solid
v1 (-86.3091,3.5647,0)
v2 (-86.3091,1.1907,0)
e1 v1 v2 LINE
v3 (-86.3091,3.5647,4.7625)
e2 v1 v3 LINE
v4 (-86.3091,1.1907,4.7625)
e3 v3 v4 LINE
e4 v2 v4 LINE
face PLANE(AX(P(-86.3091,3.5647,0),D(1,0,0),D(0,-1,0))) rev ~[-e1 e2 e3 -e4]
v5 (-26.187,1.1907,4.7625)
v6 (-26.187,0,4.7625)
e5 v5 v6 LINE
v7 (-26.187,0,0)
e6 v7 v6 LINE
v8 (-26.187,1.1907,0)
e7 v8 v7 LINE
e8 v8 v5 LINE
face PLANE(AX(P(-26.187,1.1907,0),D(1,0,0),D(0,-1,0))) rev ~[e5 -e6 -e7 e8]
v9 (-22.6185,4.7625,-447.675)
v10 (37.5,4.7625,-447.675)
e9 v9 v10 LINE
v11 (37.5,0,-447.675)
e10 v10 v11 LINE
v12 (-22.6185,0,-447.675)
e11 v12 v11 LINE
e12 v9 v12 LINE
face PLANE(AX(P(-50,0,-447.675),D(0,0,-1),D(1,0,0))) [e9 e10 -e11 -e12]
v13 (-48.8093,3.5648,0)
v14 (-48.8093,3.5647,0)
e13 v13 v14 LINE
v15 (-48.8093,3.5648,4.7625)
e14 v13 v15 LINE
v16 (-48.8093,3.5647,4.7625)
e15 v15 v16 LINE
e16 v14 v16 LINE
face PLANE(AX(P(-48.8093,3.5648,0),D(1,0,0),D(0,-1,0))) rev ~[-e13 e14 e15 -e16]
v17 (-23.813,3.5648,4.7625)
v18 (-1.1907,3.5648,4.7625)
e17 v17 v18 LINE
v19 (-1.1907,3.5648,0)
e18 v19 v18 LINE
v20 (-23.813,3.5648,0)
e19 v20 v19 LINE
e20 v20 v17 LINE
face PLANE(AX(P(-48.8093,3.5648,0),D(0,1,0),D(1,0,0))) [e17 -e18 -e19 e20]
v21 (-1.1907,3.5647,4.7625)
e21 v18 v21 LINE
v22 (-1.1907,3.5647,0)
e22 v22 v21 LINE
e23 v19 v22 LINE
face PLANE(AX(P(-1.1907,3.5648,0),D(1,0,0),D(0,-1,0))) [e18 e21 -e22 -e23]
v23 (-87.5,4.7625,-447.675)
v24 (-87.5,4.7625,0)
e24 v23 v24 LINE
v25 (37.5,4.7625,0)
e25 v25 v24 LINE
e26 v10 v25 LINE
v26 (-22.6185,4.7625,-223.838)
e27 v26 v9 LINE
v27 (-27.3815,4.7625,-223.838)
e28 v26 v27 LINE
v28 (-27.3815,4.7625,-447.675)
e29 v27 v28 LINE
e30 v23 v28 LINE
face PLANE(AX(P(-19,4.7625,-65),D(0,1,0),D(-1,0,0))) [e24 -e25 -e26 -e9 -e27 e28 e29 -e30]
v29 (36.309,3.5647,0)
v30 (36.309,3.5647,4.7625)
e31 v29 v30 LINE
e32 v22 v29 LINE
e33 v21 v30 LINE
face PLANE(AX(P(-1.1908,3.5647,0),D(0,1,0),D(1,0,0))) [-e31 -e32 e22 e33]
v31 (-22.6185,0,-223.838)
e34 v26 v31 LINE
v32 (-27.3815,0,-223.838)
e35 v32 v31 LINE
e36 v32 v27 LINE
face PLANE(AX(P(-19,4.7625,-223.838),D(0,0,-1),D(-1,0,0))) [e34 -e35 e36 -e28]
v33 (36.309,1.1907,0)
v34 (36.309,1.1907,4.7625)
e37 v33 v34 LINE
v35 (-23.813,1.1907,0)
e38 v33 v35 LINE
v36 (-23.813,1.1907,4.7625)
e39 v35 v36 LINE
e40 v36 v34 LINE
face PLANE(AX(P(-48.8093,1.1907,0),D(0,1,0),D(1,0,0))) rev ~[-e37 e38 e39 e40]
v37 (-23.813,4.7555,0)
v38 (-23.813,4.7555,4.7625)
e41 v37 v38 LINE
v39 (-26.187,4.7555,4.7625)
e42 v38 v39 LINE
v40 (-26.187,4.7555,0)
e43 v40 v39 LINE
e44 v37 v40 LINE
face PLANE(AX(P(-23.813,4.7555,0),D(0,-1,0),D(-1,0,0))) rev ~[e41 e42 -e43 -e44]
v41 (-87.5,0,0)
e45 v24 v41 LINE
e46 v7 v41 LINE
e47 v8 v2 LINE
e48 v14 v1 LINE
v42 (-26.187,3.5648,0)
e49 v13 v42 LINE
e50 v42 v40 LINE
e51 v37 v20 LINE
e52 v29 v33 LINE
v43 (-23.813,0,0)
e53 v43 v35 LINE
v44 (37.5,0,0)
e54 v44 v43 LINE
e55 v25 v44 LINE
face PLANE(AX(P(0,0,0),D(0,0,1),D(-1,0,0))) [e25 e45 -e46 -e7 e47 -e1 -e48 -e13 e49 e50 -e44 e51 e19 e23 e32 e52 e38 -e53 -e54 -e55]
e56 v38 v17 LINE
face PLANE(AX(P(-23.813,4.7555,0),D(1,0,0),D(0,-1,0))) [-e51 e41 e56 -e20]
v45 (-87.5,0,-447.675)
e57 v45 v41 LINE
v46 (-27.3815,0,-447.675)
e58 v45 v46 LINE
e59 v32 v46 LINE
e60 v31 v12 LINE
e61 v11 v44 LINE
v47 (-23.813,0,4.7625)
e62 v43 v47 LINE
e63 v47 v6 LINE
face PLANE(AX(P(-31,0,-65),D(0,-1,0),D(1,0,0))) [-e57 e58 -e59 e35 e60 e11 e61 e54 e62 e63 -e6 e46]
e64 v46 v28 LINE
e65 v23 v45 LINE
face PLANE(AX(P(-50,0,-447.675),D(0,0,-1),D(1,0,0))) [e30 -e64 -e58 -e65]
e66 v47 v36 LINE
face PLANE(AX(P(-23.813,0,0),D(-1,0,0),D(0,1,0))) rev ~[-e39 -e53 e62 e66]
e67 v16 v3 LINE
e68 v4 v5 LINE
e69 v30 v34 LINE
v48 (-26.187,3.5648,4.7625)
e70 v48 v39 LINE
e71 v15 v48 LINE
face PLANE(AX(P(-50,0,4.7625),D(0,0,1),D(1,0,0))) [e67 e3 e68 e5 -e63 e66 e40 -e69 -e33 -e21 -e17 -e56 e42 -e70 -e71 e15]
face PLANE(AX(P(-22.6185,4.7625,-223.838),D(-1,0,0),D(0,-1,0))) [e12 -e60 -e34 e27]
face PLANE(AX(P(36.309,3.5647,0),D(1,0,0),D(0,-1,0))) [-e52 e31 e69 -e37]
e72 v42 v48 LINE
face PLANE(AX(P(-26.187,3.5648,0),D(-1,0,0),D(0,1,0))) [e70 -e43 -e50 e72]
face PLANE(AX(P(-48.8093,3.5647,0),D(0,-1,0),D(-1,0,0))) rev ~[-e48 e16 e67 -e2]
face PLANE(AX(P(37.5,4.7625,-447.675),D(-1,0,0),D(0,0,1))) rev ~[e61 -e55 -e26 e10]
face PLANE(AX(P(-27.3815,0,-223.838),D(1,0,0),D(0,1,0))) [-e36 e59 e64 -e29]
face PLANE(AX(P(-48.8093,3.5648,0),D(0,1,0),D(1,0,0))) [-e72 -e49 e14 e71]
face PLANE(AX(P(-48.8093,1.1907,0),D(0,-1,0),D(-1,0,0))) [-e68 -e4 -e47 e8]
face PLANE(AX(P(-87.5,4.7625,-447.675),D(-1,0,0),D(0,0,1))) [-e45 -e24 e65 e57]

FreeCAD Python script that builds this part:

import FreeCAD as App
import Part
import Sketcher
Q = App.Units.Quantity

doc = App.newDocument("Part")
body = doc.addObject("PartDesign::Body", "Body")

sketch1 = body.newObject("Sketcher::SketchObject", "Sketch")
sketch1.AttachmentSupport = (doc.getObject("XZ_Plane"), [""])
sketch1.MapMode = "FlatFace"
sketch1.addGeometry(Part.LineSegment(App.Vector(-50, 0, 0), App.Vector(0, 0, 0)), False)
sketch1.addGeometry(Part.LineSegment(App.Vector(0, 0, 0), App.Vector(0, -448, 0)), False)
sketch1.addGeometry(Part.LineSegment(App.Vector(0, -448, 0), App.Vector(-50, -448, 0)), False)
sketch1.addGeometry(Part.LineSegment(App.Vector(-50, -448, 0), App.Vector(-50, 0, 0)), False)
sketch1.addConstraint(Sketcher.Constraint("Coincident", 0, 2, 1, 1))
sketch1.addConstraint(Sketcher.Constraint("Coincident", 1, 2, 2, 1))
sketch1.addConstraint(Sketcher.Constraint("Coincident", 2, 2, 3, 1))
sketch1.addConstraint(Sketcher.Constraint("Coincident", 3, 2, 0, 1))
sketch1.addConstraint(Sketcher.Constraint("Horizontal", 0))
sketch1.addConstraint(Sketcher.Constraint("Vertical", 1))
sketch1.addConstraint(Sketcher.Constraint("Horizontal", 2))
sketch1.addConstraint(Sketcher.Constraint("Vertical", 3))
sketch1.addConstraint(Sketcher.Constraint("Coincident", 0, 2, -1, 1))
sketch1.addConstraint(Sketcher.Constraint("DistanceX", 0, 1, 0, 2, Q("50 mm")))
sketch1.addConstraint(Sketcher.Constraint("DistanceY", 1, 2, 1, 1, Q("447.675 mm")))
pad1 = body.newObject("PartDesign::Pad", "Pad")
pad1.Profile = sketch1
pad1.Length = 4.7625
pad1.Reversed = True

sketch2 = body.newObject("Sketcher::SketchObject", "Sketch001")
sketch2.AttachmentSupport = (doc.getObject("XY_Plane"), [""])
sketch2.MapMode = "FlatFace"
sketch2.addGeometry(Part.LineSegment(App.Vector(-1.2, 3.6, 0), App.Vector(-48.8, 3.6, 0)), False)
sketch2.addGeometry(Part.LineSegment(App.Vector(-48.8, 3.6, 0), App.Vector(-48.8, 1.2, 0)), False)
sketch2.addGeometry(Part.LineSegment(App.Vector(-48.8, 1.2, 0), App.Vector(-1.2, 1.2, 0)), False)
sketch2.addGeometry(Part.LineSegment(App.Vector(-1.2, 1.2, 0), App.Vector(-1.2, 3.6, 0)), False)
sketch2.addConstraint(Sketcher.Constraint("Coincident", 0, 2, 1, 1))
sketch2.addConstraint(Sketcher.Constraint("Coincident", 1, 2, 2, 1))
sketch2.addConstraint(Sketcher.Constraint("Coincident", 2, 2, 3, 1))
sketch2.addConstraint(Sketcher.Constraint("Coincident", 3, 2, 0, 1))
sketch2.addConstraint(Sketcher.Constraint("Horizontal", 0))
sketch2.addConstraint(Sketcher.Constraint("Vertical", 1))
sketch2.addConstraint(Sketcher.Constraint("Horizontal", 2))
sketch2.addConstraint(Sketcher.Constraint("Vertical", 3))
sketch2.addConstraint(Sketcher.Constraint("DistanceY", 1, 2, 1, 1, Q("2.374 mm")))
sketch2.addConstraint(Sketcher.Constraint("DistanceX", 0, 2, 0, 1, Q("47.6186 mm")))
sketch2.addConstraint(Sketcher.Constraint("DistanceX", 0, 2, -1, 1, Q("48.8093 mm")))
sketch2.addConstraint(Sketcher.Constraint("DistanceY", -1, 1, 0, 2, Q("3.5648 mm")))
pad2 = body.newObject("PartDesign::Pad", "Pad001")
pad2.Profile = sketch2
pad2.Length = 4.7625

sketch3 = body.newObject("Sketcher::SketchObject", "Sketch002")
sketch3.AttachmentSupport = (doc.getObject("XZ_Plane"), [""])
sketch3.MapMode = "FlatFace"
sketch3.AttachmentOffset = App.Placement(App.Vector(0, 0, -4.7625), App.Rotation())
sketch3.addGeometry(Part.LineSegment(App.Vector(-31, -65, 0), App.Vector(-19, -65, 0)), False)
sketch3.addGeometry(Part.LineSegment(App.Vector(-19, -65, 0), App.Vector(-19, -448, 0)), False)
sketch3.addGeometry(Part.LineSegment(App.Vector(-19, -448, 0), App.Vector(-31, -448, 0)), False)
sketch3.addGeometry(Part.LineSegment(App.Vector(-31, -448, 0), App.Vector(-31, -65, 0)), False)
sketch3.addConstraint(Sketcher.Constraint("Coincident", 0, 2, 1, 1))
sketch3.addConstraint(Sketcher.Constraint("Coincident", 1, 2, 2, 1))
sketch3.addConstraint(Sketcher.Constraint("Coincident", 2, 2, 3, 1))
sketch3.addConstraint(Sketcher.Constraint("Coincident", 3, 2, 0, 1))
sketch3.addConstraint(Sketcher.Constraint("Horizontal", 0))
sketch3.addConstraint(Sketcher.Constraint("Vertical", 1))
sketch3.addConstraint(Sketcher.Constraint("Horizontal", 2))
sketch3.addConstraint(Sketcher.Constraint("Vertical", 3))
sketch3.addConstraint(Sketcher.Constraint("DistanceX", 0, 1, 0, 2, Q("12 mm")))
sketch3.addConstraint(Sketcher.Constraint("DistanceX", 0, 2, -1, 1, Q("19 mm")))
sketch3.addConstraint(Sketcher.Constraint("DistanceY", 0, 2, -1, 1, Q("65 mm")))
sketch3.addConstraint(Sketcher.Constraint("DistanceY", 1, 2, 1, 1, Q("382.675 mm")))
pocket1 = body.newObject("PartDesign::Pocket", "Pocket")
pocket1.Profile = sketch3
pocket1.Length = 10
pocket1.Reversed = True

sketch4 = body.newObject("Sketcher::SketchObject", "Sketch003")
sketch4.AttachmentSupport = (doc.getObject("XY_Plane"), [""])
sketch4.MapMode = "FlatFace"
sketch4.AttachmentOffset = App.Placement(App.Vector(0, 0, -65), App.Rotation())
sketch4.addGeometry(Part.LineSegment(App.Vector(-19, 0, 0), App.Vector(-31, 0, 0)), False)
sketch4.addGeometry(Part.LineSegment(App.Vector(-31, 0, 0), App.Vector(-31, 4.8, 0)), False)
sketch4.addGeometry(Part.LineSegment(App.Vector(-31, 4.8, 0), App.Vector(-19, 4.8, 0)), False)
sketch4.addGeometry(Part.LineSegment(App.Vector(-19, 4.8, 0), App.Vector(-19, 0, 0)), False)
sketch4.addConstraint(Sketcher.Constraint("Coincident", 0, 2, 1, 1))
sketch4.addConstraint(Sketcher.Constraint("Coincident", 1, 2, 2, 1))
sketch4.addConstraint(Sketcher.Constraint("Coincident", 2, 2, 3, 1))
sketch4.addConstraint(Sketcher.Constraint("Coincident", 3, 2, 0, 1))
sketch4.addConstraint(Sketcher.Constraint("Horizontal", 0))
sketch4.addConstraint(Sketcher.Constraint("Vertical", 1))
sketch4.addConstraint(Sketcher.Constraint("Horizontal", 2))
sketch4.addConstraint(Sketcher.Constraint("Vertical", 3))
sketch4.addConstraint(Sketcher.Constraint("PointOnObject", 0, 2, -1))
sketch4.addConstraint(Sketcher.Constraint("DistanceX", 0, 2, 0, 1, Q("12 mm")))
sketch4.addConstraint(Sketcher.Constraint("DistanceX", 0, 2, -1, 1, Q("31 mm")))
sketch4.addConstraint(Sketcher.Constraint("DistanceY", 1, 1, 1, 2, Q("4.7625 mm")))
pad3 = body.newObject("PartDesign::Pad", "Pad002")
pad3.Profile = sketch4
pad3.Length = 158.838
pad3.Reversed = True

sketch5 = body.newObject("Sketcher::SketchObject", "Sketch004")
sketch5.AttachmentSupport = (doc.getObject("XY_Plane"), [""])
sketch5.MapMode = "FlatFace"
sketch5.AttachmentOffset = App.Placement(App.Vector(0, 0, -223.838), App.Rotation())
sketch5.addGeometry(Part.LineSegment(App.Vector(-19, 4.8, 0), App.Vector(-19, 0, 0)), False)
sketch5.addGeometry(Part.LineSegment(App.Vector(-19, 0, 0), App.Vector(-22.6, 0, 0)), False)
sketch5.addGeometry(Part.LineSegment(App.Vector(-22.6, 0, 0), App.Vector(-22.6, 4.8, 0)), False)
sketch5.addGeometry(Part.LineSegment(App.Vector(-22.6, 4.8, 0), App.Vector(-19, 4.8, 0)), False)
sketch5.addGeometry(Part.LineSegment(App.Vector(-27.4, 4.8, 0), App.Vector(-27.4, 0, 0)), False)
sketch5.addGeometry(Part.LineSegment(App.Vector(-27.4, 0, 0), App.Vector(-31, 0, 0)), False)
sketch5.addGeometry(Part.LineSegment(App.Vector(-31, 0, 0), App.Vector(-31, 4.8, 0)), False)
sketch5.addGeometry(Part.LineSegment(App.Vector(-31, 4.8, 0), App.Vector(-27.4, 4.8, 0)), False)
sketch5.addConstraint(Sketcher.Constraint("Coincident", 0, 2, 1, 1))
sketch5.addConstraint(Sketcher.Constraint("Coincident", 1, 2, 2, 1))
sketch5.addConstraint(Sketcher.Constraint("Coincident", 2, 2, 3, 1))
sketch5.addConstraint(Sketcher.Constraint("Coincident", 3, 2, 0, 1))
sketch5.addConstraint(Sketcher.Constraint("Coincident", 4, 2, 5, 1))
sketch5.addConstraint(Sketcher.Constraint("Coincident", 5, 2, 6, 1))
sketch5.addConstraint(Sketcher.Constraint("Coincident", 6, 2, 7, 1))
sketch5.addConstraint(Sketcher.Constraint("Coincident", 7, 2, 4, 1))
sketch5.addConstraint(Sketcher.Constraint("Vertical", 0))
sketch5.addConstraint(Sketcher.Constraint("Horizontal", 1))
sketch5.addConstraint(Sketcher.Constraint("Vertical", 2))
sketch5.addConstraint(Sketcher.Constraint("Horizontal", 3))
sketch5.addConstraint(Sketcher.Constraint("Vertical", 4))
sketch5.addConstraint(Sketcher.Constraint("Horizontal", 5))
sketch5.addConstraint(Sketcher.Constraint("Vertical", 6))
sketch5.addConstraint(Sketcher.Constraint("Horizontal", 7))
sketch5.addConstraint(Sketcher.Constraint("PointOnObject", 0, 2, -1))
sketch5.addConstraint(Sketcher.Constraint("PointOnObject", 4, 2, -1))
sketch5.addConstraint(Sketcher.Constraint("Horizontal", 3, 2, 6, 2))
sketch5.addConstraint(Sketcher.Constraint("Equal", 3, 5))
sketch5.addConstraint(Sketcher.Constraint("DistanceY", 0, 2, 0, 1, Q("4.7625 mm")))
sketch5.addConstraint(Sketcher.Constraint("DistanceX", 0, 2, -1, 1, Q("19 mm")))
sketch5.addConstraint(Sketcher.Constraint("DistanceX", 5, 2, -1, 1, Q("31 mm")))
sketch5.addConstraint(Sketcher.Constraint("DistanceX", 4, 2, 1, 2, Q("4.763 mm")))
pad4 = body.newObject("PartDesign::Pad", "Pad003")
pad4.Profile = sketch5
pad4.Length = 223.837
pad4.Reversed = True

sketch6 = body.newObject("Sketcher::SketchObject", "Sketch005")
sketch6.AttachmentSupport = (doc.getObject("XY_Plane"), [""])
sketch6.MapMode = "FlatFace"
sketch6.addGeometry(Part.LineSegment(App.Vector(-26.2, 0, 0), App.Vector(-23.8, 0, 0)), False)
sketch6.addGeometry(Part.LineSegment(App.Vector(-23.8, 0, 0), App.Vector(-23.8, 1.2, 0)), False)
sketch6.addGeometry(Part.LineSegment(App.Vector(-23.8, 1.2, 0), App.Vector(-26.2, 1.2, 0)), False)
sketch6.addGeometry(Part.LineSegment(App.Vector(-26.2, 1.2, 0), App.Vector(-26.2, 0, 0)), False)
sketch6.addGeometry(Part.LineSegment(App.Vector(-23.8, 3.6, 0), App.Vector(-23.8, 4.8, 0)), False)
sketch6.addGeometry(Part.LineSegment(App.Vector(-23.8, 4.8, 0), App.Vector(-26.2, 4.8, 0)), False)
sketch6.addGeometry(Part.LineSegment(App.Vector(-26.2, 4.8, 0), App.Vector(-26.2, 3.6, 0)), False)
sketch6.addGeometry(Part.LineSegment(App.Vector(-26.2, 3.6, 0), App.Vector(-23.8, 3.6, 0)), False)
sketch6.addConstraint(Sketcher.Constraint("Coincident", 0, 2, 1, 1))
sketch6.addConstraint(Sketcher.Constraint("Coincident", 1, 2, 2, 1))
sketch6.addConstraint(Sketcher.Constraint("Coincident", 2, 2, 3, 1))
sketch6.addConstraint(Sketcher.Constraint("Coincident", 3, 2, 0, 1))
sketch6.addConstraint(Sketcher.Constraint("Coincident", 4, 2, 5, 1))
sketch6.addConstraint(Sketcher.Constraint("Coincident", 5, 2, 6, 1))
sketch6.addConstraint(Sketcher.Constraint("Coincident", 6, 2, 7, 1))
sketch6.addConstraint(Sketcher.Constraint("Coincident", 7, 2, 4, 1))
sketch6.addConstraint(Sketcher.Constraint("Horizontal", 0))
sketch6.addConstraint(Sketcher.Constraint("Vertical", 1))
sketch6.addConstraint(Sketcher.Constraint("Horizontal", 2))
sketch6.addConstraint(Sketcher.Constraint("Vertical", 3))
sketch6.addConstraint(Sketcher.Constraint("Vertical", 4))
sketch6.addConstraint(Sketcher.Constraint("Horizontal", 5))
sketch6.addConstraint(Sketcher.Constraint("Vertical", 6))
sketch6.addConstraint(Sketcher.Constraint("Horizontal", 7))
sketch6.addConstraint(Sketcher.Constraint("PointOnObject", 0, 2, -1))
sketch6.addConstraint(Sketcher.Constraint("Vertical", 1, 2, 4, 2))
sketch6.addConstraint(Sketcher.Constraint("Vertical", 3, 2, 5, 2))
sketch6.addConstraint(Sketcher.Constraint("Equal", 3, 4))
sketch6.addConstraint(Sketcher.Constraint("DistanceX", 0, 1, 0, 2, Q("2.374 mm")))
sketch6.addConstraint(Sketcher.Constraint("DistanceY", 2, 2, 6, 2, Q("2.374 mm")))
sketch6.addConstraint(Sketcher.Constraint("DistanceY", 1, 1, 1, 2, Q("1.1907 mm")))
sketch6.addConstraint(Sketcher.Constraint("DistanceX", 0, 2, -1, 1, Q("23.813 mm")))
pad5 = body.newObject("PartDesign::Pad", "Pad004")
pad5.Profile = sketch6
pad5.Length = 4.7625

sketch7 = body.newObject("Sketcher::SketchObject", "Sketch006")
sketch7.AttachmentSupport = (doc.getObject("XZ_Plane"), [""])
sketch7.MapMode = "FlatFace"
sketch7.AttachmentOffset = App.Placement(App.Vector(0, 0, -4.7625), App.Rotation())
sketch7.addGeometry(Part.LineSegment(App.Vector(0, -448, 0), App.Vector(0, 0, 0)), False)
sketch7.addGeometry(Part.LineSegment(App.Vector(0, 0, 0), App.Vector(25, 0, 0)), False)
sketch7.addGeometry(Part.LineSegment(App.Vector(25, 0, 0), App.Vector(25, -448, 0)), False)
sketch7.addGeometry(Part.LineSegment(App.Vector(25, -448, 0), App.Vector(0, -448, 0)), False)
sketch7.addGeometry(Part.LineSegment(App.Vector(-75, 0, 0), App.Vector(-50, 0, 0)), False)
sketch7.addGeometry(Part.LineSegment(App.Vector(-50, 0, 0), App.Vector(-50, -448, 0)), False)
sketch7.addGeometry(Part.LineSegment(App.Vector(-50, -448, 0), App.Vector(-75, -448, 0)), False)
sketch7.addGeometry(Part.LineSegment(App.Vector(-75, -448, 0), App.Vector(-75, 0, 0)), False)
sketch7.addConstraint(Sketcher.Constraint("Coincident", 0, 2, 1, 1))
sketch7.addConstraint(Sketcher.Constraint("Coincident", 1, 2, 2, 1))
sketch7.addConstraint(Sketcher.Constraint("Coincident", 2, 2, 3, 1))
sketch7.addConstraint(Sketcher.Constraint("Coincident", 3, 2, 0, 1))
sketch7.addConstraint(Sketcher.Constraint("Coincident", 4, 2, 5, 1))
sketch7.addConstraint(Sketcher.Constraint("Coincident", 5, 2, 6, 1))
sketch7.addConstraint(Sketcher.Constraint("Coincident", 6, 2, 7, 1))
sketch7.addConstraint(Sketcher.Constraint("Coincident", 7, 2, 4, 1))
sketch7.addConstraint(Sketcher.Constraint("Vertical", 0))
sketch7.addConstraint(Sketcher.Constraint("Horizontal", 1))
sketch7.addConstraint(Sketcher.Constraint("Vertical", 2))
sketch7.addConstraint(Sketcher.Constraint("Horizontal", 3))
sketch7.addConstraint(Sketcher.Constraint("Horizontal", 4))
sketch7.addConstraint(Sketcher.Constraint("Vertical", 5))
sketch7.addConstraint(Sketcher.Constraint("Horizontal", 6))
sketch7.addConstraint(Sketcher.Constraint("Vertical", 7))
sketch7.addConstraint(Sketcher.Constraint("Coincident", 0, 2, -1, 1))
sketch7.addConstraint(Sketcher.Constraint("PointOnObject", 4, 2, -1))
sketch7.addConstraint(Sketcher.Constraint("Horizontal", 3, 2, 5, 2))
sketch7.addConstraint(Sketcher.Constraint("Equal", 3, 4))
sketch7.addConstraint(Sketcher.Constraint("DistanceX", 1, 1, 1, 2, Q("25 mm")))
sketch7.addConstraint(Sketcher.Constraint("DistanceX", 4, 2, -1, 1, Q("50 mm")))
sketch7.addConstraint(Sketcher.Constraint("DistanceY", 0, 1, 0, 2, Q("447.675 mm")))
pad6 = body.newObject("PartDesign::Pad", "Pad005")
pad6.Profile = sketch7
pad6.Length = 4.7625

sketch8 = body.newObject("Sketcher::SketchObject", "Sketch007")
sketch8.AttachmentSupport = (doc.getObject("XZ_Plane"), [""])
sketch8.MapMode = "FlatFace"
sketch8.AttachmentOffset = App.Placement(App.Vector(0, 0, -4.7625), App.Rotation())
sketch8.addGeometry(Part.LineSegment(App.Vector(25, -448, 0), App.Vector(25, 0, 0)), False)
sketch8.addGeometry(Part.LineSegment(App.Vector(25, 0, 0), App.Vector(38, 0, 0)), False)
sketch8.addGeometry(Part.LineSegment(App.Vector(38, 0, 0), App.Vector(38, -448, 0)), False)
sketch8.addGeometry(Part.LineSegment(App.Vector(38, -448, 0), App.Vector(25, -448, 0)), False)
sketch8.addGeometry(Part.LineSegment(App.Vector(-88, 0, 0), App.Vector(-75, 0, 0)), False)
sketch8.addGeometry(Part.LineSegment(App.Vector(-75, 0, 0), App.Vector(-75, -448, 0)), False)
sketch8.addGeometry(Part.LineSegment(App.Vector(-75, -448, 0), App.Vector(-88, -448, 0)), False)
sketch8.addGeometry(Part.LineSegment(App.Vector(-88, -448, 0), App.Vector(-88, 0, 0)), False)
sketch8.addConstraint(Sketcher.Constraint("Coincident", 0, 2, 1, 1))
sketch8.addConstraint(Sketcher.Constraint("Coincident", 1, 2, 2, 1))
sketch8.addConstraint(Sketcher.Constraint("Coincident", 2, 2, 3, 1))
sketch8.addConstraint(Sketcher.Constraint("Coincident", 3, 2, 0, 1))
sketch8.addConstraint(Sketcher.Constraint("Coincident", 4, 2, 5, 1))
sketch8.addConstraint(Sketcher.Constraint("Coincident", 5, 2, 6, 1))
sketch8.addConstraint(Sketcher.Constraint("Coincident", 6, 2, 7, 1))
sketch8.addConstraint(Sketcher.Constraint("Coincident", 7, 2, 4, 1))
sketch8.addConstraint(Sketcher.Constraint("Vertical", 0))
sketch8.addConstraint(Sketcher.Constraint("Horizontal", 1))
sketch8.addConstraint(Sketcher.Constraint("Vertical", 2))
sketch8.addConstraint(Sketcher.Constraint("Horizontal", 3))
sketch8.addConstraint(Sketcher.Constraint("Horizontal", 4))
sketch8.addConstraint(Sketcher.Constraint("Vertical", 5))
sketch8.addConstraint(Sketcher.Constraint("Horizontal", 6))
sketch8.addConstraint(Sketcher.Constraint("Vertical", 7))
sketch8.addConstraint(Sketcher.Constraint("PointOnObject", 0, 2, -1))
sketch8.addConstraint(Sketcher.Constraint("PointOnObject", 4, 2, -1))
sketch8.addConstraint(Sketcher.Constraint("Horizontal", 3, 2, 5, 2))
sketch8.addConstraint(Sketcher.Constraint("Equal", 3, 4))
sketch8.addConstraint(Sketcher.Constraint("DistanceX", 1, 1, 1, 2, Q("12.5 mm")))
sketch8.addConstraint(Sketcher.Constraint("DistanceX", -1, 1, 0, 2, Q("25 mm")))
sketch8.addConstraint(Sketcher.Constraint("DistanceX", 4, 2, -1, 1, Q("75 mm")))
sketch8.addConstraint(Sketcher.Constraint("DistanceY", 0, 1, 0, 2, Q("447.675 mm")))
pad7 = body.newObject("PartDesign::Pad", "Pad006")
pad7.Profile = sketch8
pad7.Length = 4.7625

sketch9 = body.newObject("Sketcher::SketchObject", "Sketch008")
sketch9.AttachmentSupport = (doc.getObject("XY_Plane"), [""])
sketch9.MapMode = "FlatFace"
sketch9.addGeometry(Part.LineSegment(App.Vector(-1.2, 3.6, 0), App.Vector(-1.2, 1.2, 0)), False)
sketch9.addGeometry(Part.LineSegment(App.Vector(-1.2, 1.2, 0), App.Vector(36.3, 1.2, 0)), False)
sketch9.addGeometry(Part.LineSegment(App.Vector(36.3, 1.2, 0), App.Vector(36.3, 3.6, 0)), False)
sketch9.addGeometry(Part.LineSegment(App.Vector(36.3, 3.6, 0), App.Vector(-1.2, 3.6, 0)), False)
sketch9.addGeometry(Part.LineSegment(App.Vector(-86.3, 1.2, 0), App.Vector(-48.8, 1.2, 0)), False)
sketch9.addGeometry(Part.LineSegment(App.Vector(-48.8, 1.2, 0), App.Vector(-48.8, 3.6, 0)), False)
sketch9.addGeometry(Part.LineSegment(App.Vector(-48.8, 3.6, 0), App.Vector(-86.3, 3.6, 0)), False)
sketch9.addGeometry(Part.LineSegment(App.Vector(-86.3, 3.6, 0), App.Vector(-86.3, 1.2, 0)), False)
sketch9.addConstraint(Sketcher.Constraint("Coincident", 0, 2, 1, 1))
sketch9.addConstraint(Sketcher.Constraint("Coincident", 1, 2, 2, 1))
sketch9.addConstraint(Sketcher.Constraint("Coincident", 2, 2, 3, 1))
sketch9.addConstraint(Sketcher.Constraint("Coincident", 3, 2, 0, 1))
sketch9.addConstraint(Sketcher.Constraint("Coincident", 4, 2, 5, 1))
sketch9.addConstraint(Sketcher.Constraint("Coincident", 5, 2, 6, 1))
sketch9.addConstraint(Sketcher.Constraint("Coincident", 6, 2, 7, 1))
sketch9.addConstraint(Sketcher.Constraint("Coincident", 7, 2, 4, 1))
sketch9.addConstraint(Sketcher.Constraint("Vertical", 0))
sketch9.addConstraint(Sketcher.Constraint("Horizontal", 1))
sketch9.addConstraint(Sketcher.Constraint("Vertical", 2))
sketch9.addConstraint(Sketcher.Constraint("Horizontal", 3))
sketch9.addConstraint(Sketcher.Constraint("Horizontal", 4))
sketch9.addConstraint(Sketcher.Constraint("Vertical", 5))
sketch9.addConstraint(Sketcher.Constraint("Horizontal", 6))
sketch9.addConstraint(Sketcher.Constraint("Vertical", 7))
sketch9.addConstraint(Sketcher.Constraint("Horizontal", 1, 2, 4, 2))
sketch9.addConstraint(Sketcher.Constraint("Horizontal", 3, 2, 5, 2))
sketch9.addConstraint(Sketcher.Constraint("Equal", 3, 4))
sketch9.addConstraint(Sketcher.Constraint("DistanceY", 0, 2, 0, 1, Q("2.374 mm")))
sketch9.addConstraint(Sketcher.Constraint("DistanceX", 1, 1, 1, 2, Q("37.4998 mm")))
sketch9.addConstraint(Sketcher.Constraint("DistanceX", -1, 1, 1, 2, Q("36.309 mm")))
sketch9.addConstraint(Sketcher.Constraint("DistanceX", 6, 2, -1, 1, Q("86.309 mm")))
sketch9.addConstraint(Sketcher.Constraint("DistanceY", -1, 1, 0, 2, Q("1.1907 mm")))
pad8 = body.newObject("PartDesign::Pad", "Pad007")
pad8.Profile = sketch9
pad8.Length = 4.7625

doc.recompute()
